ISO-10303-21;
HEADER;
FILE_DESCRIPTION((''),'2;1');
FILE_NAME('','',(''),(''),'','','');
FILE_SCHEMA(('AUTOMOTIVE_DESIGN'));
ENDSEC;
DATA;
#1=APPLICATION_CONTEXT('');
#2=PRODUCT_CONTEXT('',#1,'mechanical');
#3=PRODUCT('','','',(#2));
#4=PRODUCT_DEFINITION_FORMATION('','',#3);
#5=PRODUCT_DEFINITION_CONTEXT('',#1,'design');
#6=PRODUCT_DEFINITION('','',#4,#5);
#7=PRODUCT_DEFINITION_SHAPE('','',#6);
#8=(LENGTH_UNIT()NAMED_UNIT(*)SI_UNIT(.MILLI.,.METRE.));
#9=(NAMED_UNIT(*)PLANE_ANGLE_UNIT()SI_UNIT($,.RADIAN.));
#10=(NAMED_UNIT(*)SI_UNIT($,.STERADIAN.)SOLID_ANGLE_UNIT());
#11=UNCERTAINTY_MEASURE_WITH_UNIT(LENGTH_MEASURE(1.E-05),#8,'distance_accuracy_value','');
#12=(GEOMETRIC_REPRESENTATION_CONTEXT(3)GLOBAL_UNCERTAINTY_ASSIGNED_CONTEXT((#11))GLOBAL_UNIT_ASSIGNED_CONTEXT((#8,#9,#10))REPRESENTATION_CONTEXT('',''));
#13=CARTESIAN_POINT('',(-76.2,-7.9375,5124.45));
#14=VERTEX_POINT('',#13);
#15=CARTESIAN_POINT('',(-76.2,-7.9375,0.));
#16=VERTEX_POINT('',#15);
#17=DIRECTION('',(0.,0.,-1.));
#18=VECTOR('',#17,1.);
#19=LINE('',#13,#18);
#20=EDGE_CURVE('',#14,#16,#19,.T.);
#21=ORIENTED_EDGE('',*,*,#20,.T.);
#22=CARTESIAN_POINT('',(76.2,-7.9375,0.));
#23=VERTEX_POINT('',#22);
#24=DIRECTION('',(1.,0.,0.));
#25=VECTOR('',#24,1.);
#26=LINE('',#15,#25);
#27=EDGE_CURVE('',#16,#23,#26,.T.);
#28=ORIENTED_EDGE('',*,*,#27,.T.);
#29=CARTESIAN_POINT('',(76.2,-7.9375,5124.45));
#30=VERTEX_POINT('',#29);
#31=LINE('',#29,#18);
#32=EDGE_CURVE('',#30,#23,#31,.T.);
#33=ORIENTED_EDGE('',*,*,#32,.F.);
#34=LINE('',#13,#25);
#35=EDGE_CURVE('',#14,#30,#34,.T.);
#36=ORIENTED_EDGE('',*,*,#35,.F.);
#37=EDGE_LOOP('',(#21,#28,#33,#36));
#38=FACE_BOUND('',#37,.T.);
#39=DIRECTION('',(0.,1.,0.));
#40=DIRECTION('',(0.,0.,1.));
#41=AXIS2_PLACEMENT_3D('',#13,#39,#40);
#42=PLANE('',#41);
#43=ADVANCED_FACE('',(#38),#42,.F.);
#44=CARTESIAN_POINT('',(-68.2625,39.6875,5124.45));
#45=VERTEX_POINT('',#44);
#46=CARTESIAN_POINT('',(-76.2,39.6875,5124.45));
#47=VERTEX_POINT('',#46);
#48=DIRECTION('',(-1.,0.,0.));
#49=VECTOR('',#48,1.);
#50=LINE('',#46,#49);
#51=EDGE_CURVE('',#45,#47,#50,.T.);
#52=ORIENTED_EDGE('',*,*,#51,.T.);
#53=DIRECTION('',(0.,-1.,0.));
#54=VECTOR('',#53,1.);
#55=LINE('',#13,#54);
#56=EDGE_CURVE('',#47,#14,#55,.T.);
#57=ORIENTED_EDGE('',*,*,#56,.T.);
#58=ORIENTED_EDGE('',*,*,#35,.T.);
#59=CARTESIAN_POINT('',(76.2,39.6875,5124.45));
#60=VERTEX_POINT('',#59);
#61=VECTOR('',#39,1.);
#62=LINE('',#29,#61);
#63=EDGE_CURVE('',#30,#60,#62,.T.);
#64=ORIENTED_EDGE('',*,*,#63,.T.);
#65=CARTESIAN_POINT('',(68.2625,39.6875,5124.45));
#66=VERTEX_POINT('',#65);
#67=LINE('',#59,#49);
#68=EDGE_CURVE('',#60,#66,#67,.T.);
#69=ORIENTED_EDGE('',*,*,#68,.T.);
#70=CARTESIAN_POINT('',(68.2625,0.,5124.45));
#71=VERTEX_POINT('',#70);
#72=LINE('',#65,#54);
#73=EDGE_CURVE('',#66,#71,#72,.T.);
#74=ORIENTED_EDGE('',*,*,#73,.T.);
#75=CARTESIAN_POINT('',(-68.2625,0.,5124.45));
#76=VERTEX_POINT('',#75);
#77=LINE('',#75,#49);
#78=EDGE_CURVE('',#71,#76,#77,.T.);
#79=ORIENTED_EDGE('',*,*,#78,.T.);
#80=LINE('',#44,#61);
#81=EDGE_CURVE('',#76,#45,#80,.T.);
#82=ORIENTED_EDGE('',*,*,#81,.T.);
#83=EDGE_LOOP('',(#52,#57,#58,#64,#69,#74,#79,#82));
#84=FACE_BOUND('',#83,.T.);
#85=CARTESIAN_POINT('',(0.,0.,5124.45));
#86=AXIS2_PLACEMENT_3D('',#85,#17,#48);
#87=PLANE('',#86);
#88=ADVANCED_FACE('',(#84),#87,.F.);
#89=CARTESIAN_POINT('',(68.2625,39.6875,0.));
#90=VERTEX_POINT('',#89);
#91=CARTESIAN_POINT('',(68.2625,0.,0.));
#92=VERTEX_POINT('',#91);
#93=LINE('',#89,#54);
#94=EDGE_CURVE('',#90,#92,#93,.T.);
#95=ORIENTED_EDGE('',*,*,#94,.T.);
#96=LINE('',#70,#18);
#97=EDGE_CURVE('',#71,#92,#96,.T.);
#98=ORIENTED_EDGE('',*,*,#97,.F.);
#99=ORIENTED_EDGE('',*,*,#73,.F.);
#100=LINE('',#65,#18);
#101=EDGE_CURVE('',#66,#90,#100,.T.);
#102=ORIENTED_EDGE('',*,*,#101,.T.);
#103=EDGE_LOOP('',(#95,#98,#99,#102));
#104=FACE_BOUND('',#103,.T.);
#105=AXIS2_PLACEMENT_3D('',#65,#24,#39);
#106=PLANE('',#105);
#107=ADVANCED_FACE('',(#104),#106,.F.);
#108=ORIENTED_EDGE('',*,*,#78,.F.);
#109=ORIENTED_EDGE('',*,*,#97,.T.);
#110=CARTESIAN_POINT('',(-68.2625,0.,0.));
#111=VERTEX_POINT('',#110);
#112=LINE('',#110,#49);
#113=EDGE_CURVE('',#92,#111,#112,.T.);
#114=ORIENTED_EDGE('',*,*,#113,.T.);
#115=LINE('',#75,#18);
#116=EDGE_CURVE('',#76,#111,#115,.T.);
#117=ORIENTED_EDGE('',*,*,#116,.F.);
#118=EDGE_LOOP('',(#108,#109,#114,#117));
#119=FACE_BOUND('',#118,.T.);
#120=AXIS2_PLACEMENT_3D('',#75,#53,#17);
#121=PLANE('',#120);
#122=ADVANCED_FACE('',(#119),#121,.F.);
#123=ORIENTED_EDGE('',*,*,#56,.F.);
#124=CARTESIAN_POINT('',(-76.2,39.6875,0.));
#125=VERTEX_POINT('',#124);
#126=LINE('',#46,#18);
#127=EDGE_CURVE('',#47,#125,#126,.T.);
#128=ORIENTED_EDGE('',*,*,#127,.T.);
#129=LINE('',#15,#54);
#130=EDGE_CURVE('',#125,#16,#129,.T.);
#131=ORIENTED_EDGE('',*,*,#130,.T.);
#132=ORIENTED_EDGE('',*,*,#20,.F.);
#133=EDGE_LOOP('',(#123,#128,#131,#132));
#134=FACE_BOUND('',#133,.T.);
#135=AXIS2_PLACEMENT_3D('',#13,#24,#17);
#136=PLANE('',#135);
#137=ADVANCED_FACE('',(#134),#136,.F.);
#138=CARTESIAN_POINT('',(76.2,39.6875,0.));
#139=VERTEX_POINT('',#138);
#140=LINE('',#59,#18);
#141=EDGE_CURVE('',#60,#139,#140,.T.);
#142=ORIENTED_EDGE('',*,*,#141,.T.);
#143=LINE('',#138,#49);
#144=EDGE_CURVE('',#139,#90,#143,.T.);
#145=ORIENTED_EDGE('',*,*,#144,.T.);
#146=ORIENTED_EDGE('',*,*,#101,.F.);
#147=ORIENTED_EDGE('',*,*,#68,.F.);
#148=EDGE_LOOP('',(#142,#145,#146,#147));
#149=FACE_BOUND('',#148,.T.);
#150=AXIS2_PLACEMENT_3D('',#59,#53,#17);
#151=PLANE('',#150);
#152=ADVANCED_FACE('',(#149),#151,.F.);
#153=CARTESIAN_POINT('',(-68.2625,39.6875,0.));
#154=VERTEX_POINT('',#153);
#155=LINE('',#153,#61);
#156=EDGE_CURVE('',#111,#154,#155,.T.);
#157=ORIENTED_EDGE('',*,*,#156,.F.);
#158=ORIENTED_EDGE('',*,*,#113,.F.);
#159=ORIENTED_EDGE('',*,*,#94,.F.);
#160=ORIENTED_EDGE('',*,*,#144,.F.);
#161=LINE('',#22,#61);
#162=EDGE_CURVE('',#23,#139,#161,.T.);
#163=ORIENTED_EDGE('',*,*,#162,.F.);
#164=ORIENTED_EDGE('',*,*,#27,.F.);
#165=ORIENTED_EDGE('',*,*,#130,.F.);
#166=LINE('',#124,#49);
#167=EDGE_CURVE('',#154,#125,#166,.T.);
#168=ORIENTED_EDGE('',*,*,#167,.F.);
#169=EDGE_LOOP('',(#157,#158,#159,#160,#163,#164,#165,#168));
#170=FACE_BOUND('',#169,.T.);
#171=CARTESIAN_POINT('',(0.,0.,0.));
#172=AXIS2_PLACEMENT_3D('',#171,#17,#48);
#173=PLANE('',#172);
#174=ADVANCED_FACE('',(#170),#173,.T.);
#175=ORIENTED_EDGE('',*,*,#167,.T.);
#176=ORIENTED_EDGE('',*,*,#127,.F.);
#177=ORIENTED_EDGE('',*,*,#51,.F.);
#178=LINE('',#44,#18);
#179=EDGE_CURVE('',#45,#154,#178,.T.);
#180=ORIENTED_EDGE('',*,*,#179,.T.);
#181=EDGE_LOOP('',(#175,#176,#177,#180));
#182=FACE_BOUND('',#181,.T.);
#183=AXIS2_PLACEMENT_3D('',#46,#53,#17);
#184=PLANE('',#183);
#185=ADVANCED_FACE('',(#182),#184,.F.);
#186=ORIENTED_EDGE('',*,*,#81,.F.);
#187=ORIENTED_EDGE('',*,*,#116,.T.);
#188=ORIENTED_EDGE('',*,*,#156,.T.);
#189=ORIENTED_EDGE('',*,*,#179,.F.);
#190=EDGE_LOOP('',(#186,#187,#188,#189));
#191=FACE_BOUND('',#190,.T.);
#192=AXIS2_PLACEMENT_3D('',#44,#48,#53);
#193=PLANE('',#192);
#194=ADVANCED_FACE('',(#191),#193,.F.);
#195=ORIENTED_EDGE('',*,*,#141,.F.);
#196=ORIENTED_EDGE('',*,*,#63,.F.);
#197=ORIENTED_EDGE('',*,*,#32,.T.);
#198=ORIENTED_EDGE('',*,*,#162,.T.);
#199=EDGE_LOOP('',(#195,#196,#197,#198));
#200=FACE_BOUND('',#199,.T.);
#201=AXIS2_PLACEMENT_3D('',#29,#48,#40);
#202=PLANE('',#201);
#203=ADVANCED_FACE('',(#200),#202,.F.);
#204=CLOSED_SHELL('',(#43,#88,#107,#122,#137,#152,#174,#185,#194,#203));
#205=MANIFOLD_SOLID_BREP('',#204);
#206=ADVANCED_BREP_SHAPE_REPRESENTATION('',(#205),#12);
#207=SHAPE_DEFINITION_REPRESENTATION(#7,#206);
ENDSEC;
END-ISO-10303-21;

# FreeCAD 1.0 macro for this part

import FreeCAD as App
import Part
import Sketcher

V = App.Vector
Q = App.Units.Quantity

doc = App.newDocument("Part")
body = doc.addObject("PartDesign::Body", "Body")

sketch1 = doc.addObject("Sketcher::SketchObject", "Sketch")
body.addObject(sketch1)
sketch1.AttachmentSupport = (doc.XY_Plane, [""])
sketch1.MapMode = "FlatFace"
sketch1.addGeometry(Part.LineSegment(V(-68, 0, 0), V(-68, 40, 0)), False)
sketch1.addGeometry(Part.LineSegment(V(-68, 40, 0), V(-76, 40, 0)), False)
sketch1.addGeometry(Part.LineSegment(V(-76, 40, 0), V(-76, -8, 0)), False)
sketch1.addGeometry(Part.LineSegment(V(-76, -8, 0), V(76, -8, 0)), False)
sketch1.addGeometry(Part.LineSegment(V(76, -8, 0), V(76, 40, 0)), False)
sketch1.addGeometry(Part.LineSegment(V(76, 40, 0), V(68, 40, 0)), False)
sketch1.addGeometry(Part.LineSegment(V(68, 40, 0), V(68, 0, 0)), False)
sketch1.addGeometry(Part.LineSegment(V(68, 0, 0), V(-68, 0, 0)), False)
sketch1.addConstraint(Sketcher.Constraint("Coincident", 0, 2, 1, 1))
sketch1.addConstraint(Sketcher.Constraint("Coincident", 1, 2, 2, 1))
sketch1.addConstraint(Sketcher.Constraint("Coincident", 2, 2, 3, 1))
sketch1.addConstraint(Sketcher.Constraint("Coincident", 3, 2, 4, 1))
sketch1.addConstraint(Sketcher.Constraint("Coincident", 4, 2, 5, 1))
sketch1.addConstraint(Sketcher.Constraint("Coincident", 5, 2, 6, 1))
sketch1.addConstraint(Sketcher.Constraint("Coincident", 6, 2, 7, 1))
sketch1.addConstraint(Sketcher.Constraint("Coincident", 7, 2, 0, 1))
sketch1.addConstraint(Sketcher.Constraint("Vertical", 0))
sketch1.addConstraint(Sketcher.Constraint("Horizontal", 1))
sketch1.addConstraint(Sketcher.Constraint("Vertical", 2))
sketch1.addConstraint(Sketcher.Constraint("Horizontal", 3))
sketch1.addConstraint(Sketcher.Constraint("Vertical", 4))
sketch1.addConstraint(Sketcher.Constraint("Horizontal", 5))
sketch1.addConstraint(Sketcher.Constraint("Vertical", 6))
sketch1.addConstraint(Sketcher.Constraint("Horizontal", 7))
sketch1.addConstraint(Sketcher.Constraint("Symmetric", 6, 2, 7, 2, -1, 1))
sketch1.addConstraint(Sketcher.Constraint("Symmetric", 1, 2, 4, 2, -2))
sketch1.addConstraint(Sketcher.Constraint("DistanceX", 3, 1, 3, 2, Q("6 in")))
sketch1.addConstraint(Sketcher.Constraint("DistanceX", 1, 2, 1, 1, Q("0.3125 in")))
sketch1.addConstraint(Sketcher.Constraint("DistanceY", 0, 1, 0, 2, Q("1.5625 in")))
sketch1.addConstraint(Sketcher.Constraint("DistanceY", 2, 2, 2, 1, Q("1.875 in")))
pad1 = doc.addObject("PartDesign::Pad", "Pad")
body.addObject(pad1)
pad1.Profile = sketch1
pad1.Length = Q("201.75 in")

doc.recompute()
